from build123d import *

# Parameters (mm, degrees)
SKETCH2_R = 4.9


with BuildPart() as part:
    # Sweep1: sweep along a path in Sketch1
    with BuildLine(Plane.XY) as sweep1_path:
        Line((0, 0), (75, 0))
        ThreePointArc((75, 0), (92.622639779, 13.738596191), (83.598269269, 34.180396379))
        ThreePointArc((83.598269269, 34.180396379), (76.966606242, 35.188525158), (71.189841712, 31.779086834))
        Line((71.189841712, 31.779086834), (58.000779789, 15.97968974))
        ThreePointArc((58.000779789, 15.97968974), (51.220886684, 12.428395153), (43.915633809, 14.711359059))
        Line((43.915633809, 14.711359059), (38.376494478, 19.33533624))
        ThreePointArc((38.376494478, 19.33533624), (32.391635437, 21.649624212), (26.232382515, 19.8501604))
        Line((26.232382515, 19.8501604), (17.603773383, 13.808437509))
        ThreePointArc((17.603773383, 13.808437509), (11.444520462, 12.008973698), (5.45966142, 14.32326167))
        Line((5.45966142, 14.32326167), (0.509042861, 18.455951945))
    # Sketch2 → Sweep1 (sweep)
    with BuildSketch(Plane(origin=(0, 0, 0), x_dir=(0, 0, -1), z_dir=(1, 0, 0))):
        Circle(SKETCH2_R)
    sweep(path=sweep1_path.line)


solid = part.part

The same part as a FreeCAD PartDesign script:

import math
import FreeCAD as App
import Part
import Sketcher
from FreeCAD import Vector
Q = App.Units.Quantity

doc = App.newDocument("Part")
params = doc.addObject("Spreadsheet::Sheet", "Params")
for row, (alias, value) in enumerate([
    ("sketch1_diameter", "9.8 mm"),
    ("sketch2_radius", "10 mm"),
    ("sketch2_width", "75 mm"),
], start=1):
    params.set(f"A{row}", alias)
    params.set(f"B{row}", "=" + value)
    params.setAlias(f"B{row}", alias)

body = doc.addObject("PartDesign::Body", "Body")

# Sketch on YZ plane
sketch1 = body.newObject("Sketcher::SketchObject", "Sketch")
sketch1.AttachmentSupport = (doc.getObject("YZ_Plane"), [""])
sketch1.MapMode = "FlatFace"
sketch1.addGeometry(Part.Circle(Vector(0, 0, 0), Vector(0, 0, 1), 4.9), False)
sketch1.addConstraint(Sketcher.Constraint("Coincident", 0, 3, -1, 1))
sketch1.addConstraint(Sketcher.Constraint("Diameter", 0, Q("9.8 mm")))
sketch1.setExpression("Constraints[1]", "Params.sketch1_diameter")

# Sketch on XY plane
sketch2 = body.newObject("Sketcher::SketchObject", "Sketch001")
sketch2.AttachmentSupport = (doc.getObject("XY_Plane"), [""])
sketch2.MapMode = "FlatFace"
sketch2.addGeometry(Part.LineSegment(Vector(0, 0, 0), Vector(75, 0, 0)), False)
sketch2.addGeometry(Part.ArcOfCircle(Part.Circle(Vector(75, 18, 0), Vector(0, 0, 1), 18), math.radians(-90), math.radians(62)), False)
sketch2.addGeometry(Part.ArcOfCircle(Part.Circle(Vector(79, 25, 0), Vector(0, 0, 1), 10), math.radians(62), math.radians(140)), False)
sketch2.addGeometry(Part.LineSegment(Vector(71, 32, 0), Vector(58, 16, 0)), False)
sketch2.addGeometry(Part.ArcOfCircle(Part.Circle(Vector(50, 22, 0), Vector(0, 0, 1), 10), math.radians(-130), math.radians(-40)), False)
sketch2.addGeometry(Part.LineSegment(Vector(44, 15, 0), Vector(38, 19, 0)), False)
sketch2.addGeometry(Part.ArcOfCircle(Part.Circle(Vector(32, 12, 0), Vector(0, 0, 1), 10), math.radians(50), math.radians(125)), False)
sketch2.addGeometry(Part.LineSegment(Vector(26, 20, 0), Vector(18, 14, 0)), False)
sketch2.addGeometry(Part.ArcOfCircle(Part.Circle(Vector(12, 22, 0), Vector(0, 0, 1), 10), math.radians(-130), math.radians(-55)), False)
sketch2.addGeometry(Part.LineSegment(Vector(5, 14, 0), Vector(1, 18, 0)), False)
sketch2.addConstraint(Sketcher.Constraint("Tangent", 0, 2, 1, 1))
sketch2.addConstraint(Sketcher.Constraint("Tangent", 1, 2, 2, 1))
sketch2.addConstraint(Sketcher.Constraint("Tangent", 2, 2, 3, 1))
sketch2.addConstraint(Sketcher.Constraint("Tangent", 3, 2, 4, 2))
sketch2.addConstraint(Sketcher.Constraint("Tangent", 4, 1, 5, 1))
sketch2.addConstraint(Sketcher.Constraint("Tangent", 5, 2, 6, 1))
sketch2.addConstraint(Sketcher.Constraint("Tangent", 6, 2, 7, 1))
sketch2.addConstraint(Sketcher.Constraint("Tangent", 7, 2, 8, 2))
sketch2.addConstraint(Sketcher.Constraint("Tangent", 8, 1, 9, 1))
sketch2.addConstraint(Sketcher.Constraint("Horizontal", 0))
sketch2.addConstraint(Sketcher.Constraint("Coincident", 0, 1, -1, 1))
sketch2.addConstraint(Sketcher.Constraint("Equal", 2, 4))
sketch2.addConstraint(Sketcher.Constraint("Equal", 4, 6))
sketch2.addConstraint(Sketcher.Constraint("Equal", 6, 8))
sketch2.addConstraint(Sketcher.Constraint("Perpendicular", 3, 5))
sketch2.addConstraint(Sketcher.Constraint("Parallel", 5, 9))
sketch2.addConstraint(Sketcher.Constraint("Radius", 2, Q("10 mm")))
sketch2.addConstraint(Sketcher.Constraint("DistanceX", 0, 1, 0, 2, Q("75 mm")))
sketch2.addConstraint(Sketcher.Constraint("DistanceY", -1, 1, 8, 3, Q("22 mm")))
sketch2.addConstraint(Sketcher.Constraint("Radius", 1, Q("18.171669 mm")))
sketch2.addConstraint(Sketcher.Constraint("DistanceY", 6, 3, 4, 3, Q("10.729499 mm")))
sketch2.addConstraint(Sketcher.Constraint("DistanceY", 4, 3, 1, 2, Q("11.792299 mm")))
sketch2.addConstraint(Sketcher.Constraint("DistanceX", 4, 3, 2, 2, Q("20.8658 mm")))
sketch2.addConstraint(Sketcher.Constraint("DistanceY", 4, 1, 6, 2, Q("5.138801 mm")))
sketch2.addConstraint(Sketcher.Constraint("DistanceY", 7, 2, 5, 2, Q("5.526899 mm")))
sketch2.addConstraint(Sketcher.Constraint("DistanceY", -1, 1, 9, 2, Q("18.455952 mm")))
sketch2.setExpression("Constraints[16]", "Params.sketch2_radius")
sketch2.setExpression("Constraints[17]", "Params.sketch2_width")
doc.recompute()

additivepipe = body.newObject("PartDesign::AdditivePipe", "AdditivePipe")
additivepipe.Profile = sketch1
additivepipe.Spine = (sketch2, ["Edge1", "Edge2", "Edge3", "Edge4", "Edge5", "Edge6", "Edge7", "Edge8", "Edge9", "Edge10"])

doc.recompute()
